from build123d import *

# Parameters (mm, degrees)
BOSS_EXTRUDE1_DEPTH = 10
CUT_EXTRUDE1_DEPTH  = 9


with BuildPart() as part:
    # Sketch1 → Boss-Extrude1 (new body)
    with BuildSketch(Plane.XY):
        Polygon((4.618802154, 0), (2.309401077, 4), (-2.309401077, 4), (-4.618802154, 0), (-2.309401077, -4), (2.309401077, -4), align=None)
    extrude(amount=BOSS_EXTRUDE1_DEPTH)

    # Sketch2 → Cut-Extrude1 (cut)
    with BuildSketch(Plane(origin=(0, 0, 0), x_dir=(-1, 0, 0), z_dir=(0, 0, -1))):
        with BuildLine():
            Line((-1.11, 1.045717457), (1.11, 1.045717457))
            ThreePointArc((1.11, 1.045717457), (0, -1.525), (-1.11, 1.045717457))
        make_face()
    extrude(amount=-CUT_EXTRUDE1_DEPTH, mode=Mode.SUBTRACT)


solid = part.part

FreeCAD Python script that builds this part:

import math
import FreeCAD as App
import Part
import Sketcher
Q = App.Units.Quantity

doc = App.newDocument("Part")
params = doc.addObject("Spreadsheet::Sheet", "Params")
for row, (alias, value) in enumerate([
    ("pad1_length", "10 mm"),
    ("sketch2_width", "2.22 mm"),
    ("pocket1_length", "9 mm"),
], start=1):
    params.set(f"A{row}", alias)
    params.set(f"B{row}", "=" + value)
    params.setAlias(f"B{row}", alias)

body = doc.addObject("PartDesign::Body", "Body")

# Sketch on XY plane
sketch1 = body.newObject("Sketcher::SketchObject", "Sketch")
sketch1.AttachmentSupport = (doc.getObject("XY_Plane"), [""])
sketch1.MapMode = "FlatFace"
sketch1.addGeometry(Part.LineSegment(App.Vector(4.6, 0, 0), App.Vector(2.3, 4, 0)), False)
sketch1.addGeometry(Part.LineSegment(App.Vector(2.3, 4, 0), App.Vector(-2.3, 4, 0)), False)
sketch1.addGeometry(Part.LineSegment(App.Vector(-2.3, 4, 0), App.Vector(-4.6, 0, 0)), False)
sketch1.addGeometry(Part.LineSegment(App.Vector(-4.6, 0, 0), App.Vector(-2.3, -4, 0)), False)
sketch1.addGeometry(Part.LineSegment(App.Vector(-2.3, -4, 0), App.Vector(2.3, -4, 0)), False)
sketch1.addGeometry(Part.LineSegment(App.Vector(2.3, -4, 0), App.Vector(4.6, 0, 0)), False)
sketch1.addConstraint(Sketcher.Constraint("Coincident", 0, 2, 1, 1))
sketch1.addConstraint(Sketcher.Constraint("Coincident", 1, 2, 2, 1))
sketch1.addConstraint(Sketcher.Constraint("Coincident", 2, 2, 3, 1))
sketch1.addConstraint(Sketcher.Constraint("Coincident", 3, 2, 4, 1))
sketch1.addConstraint(Sketcher.Constraint("Coincident", 4, 2, 5, 1))
sketch1.addConstraint(Sketcher.Constraint("Coincident", 5, 2, 0, 1))
sketch1.addConstraint(Sketcher.Constraint("Horizontal", 1))
sketch1.addConstraint(Sketcher.Constraint("Horizontal", 4))
sketch1.addConstraint(Sketcher.Constraint("Symmetric", 0, 2, 3, 2, -1, 1))
sketch1.addConstraint(Sketcher.Constraint("Symmetric", 2, 2, 5, 2, -1, 1))
sketch1.addConstraint(Sketcher.Constraint("PointOnObject", 2, 2, -1))
sketch1.addConstraint(Sketcher.Constraint("Parallel", 2, 5))
sketch1.addConstraint(Sketcher.Constraint("Vertical", 1, 2, 3, 2))
sketch1.addConstraint(Sketcher.Constraint("Angle", 0, Q("120 deg")))
sketch1.addConstraint(Sketcher.Constraint("DistanceY", -1, 1, 0, 2, Q("4 mm")))
sketch1.addConstraint(Sketcher.Constraint("DistanceX", -1, 1, 0, 2, Q("2.309401 mm")))
pad1 = body.newObject("PartDesign::Pad", "Pad")
pad1.Profile = sketch1
pad1.setExpression("Length", "Params.pad1_length")

# Sketch on XY plane
sketch2 = body.newObject("Sketcher::SketchObject", "Sketch001")
sketch2.AttachmentSupport = (doc.getObject("XY_Plane"), [""])
sketch2.MapMode = "FlatFace"
sketch2.addGeometry(Part.LineSegment(App.Vector(-1.1, 1, 0), App.Vector(1.1, 1, 0)), False)
sketch2.addGeometry(Part.ArcOfCircle(Part.Circle(App.Vector(0, 0, 0), App.Vector(0, 0, 1), 1.5), math.radians(137), math.radians(403)), False)
sketch2.addConstraint(Sketcher.Constraint("Coincident", 0, 1, 1, 1))
sketch2.addConstraint(Sketcher.Constraint("Coincident", 1, 2, 0, 2))
sketch2.addConstraint(Sketcher.Constraint("Horizontal", 0))
sketch2.addConstraint(Sketcher.Constraint("Coincident", 1, 3, -1, 1))
sketch2.addConstraint(Sketcher.Constraint("Radius", 1, Q("1.525 mm")))
sketch2.addConstraint(Sketcher.Constraint("DistanceX", 0, 1, 0, 2, Q("2.22 mm")))
sketch2.setExpression("Constraints[5]", "Params.sketch2_width")
pocket1 = body.newObject("PartDesign::Pocket", "Pocket")
pocket1.Profile = sketch2
pocket1.setExpression("Length", "Params.pocket1_length")
pocket1.Reversed = True

doc.recompute()
